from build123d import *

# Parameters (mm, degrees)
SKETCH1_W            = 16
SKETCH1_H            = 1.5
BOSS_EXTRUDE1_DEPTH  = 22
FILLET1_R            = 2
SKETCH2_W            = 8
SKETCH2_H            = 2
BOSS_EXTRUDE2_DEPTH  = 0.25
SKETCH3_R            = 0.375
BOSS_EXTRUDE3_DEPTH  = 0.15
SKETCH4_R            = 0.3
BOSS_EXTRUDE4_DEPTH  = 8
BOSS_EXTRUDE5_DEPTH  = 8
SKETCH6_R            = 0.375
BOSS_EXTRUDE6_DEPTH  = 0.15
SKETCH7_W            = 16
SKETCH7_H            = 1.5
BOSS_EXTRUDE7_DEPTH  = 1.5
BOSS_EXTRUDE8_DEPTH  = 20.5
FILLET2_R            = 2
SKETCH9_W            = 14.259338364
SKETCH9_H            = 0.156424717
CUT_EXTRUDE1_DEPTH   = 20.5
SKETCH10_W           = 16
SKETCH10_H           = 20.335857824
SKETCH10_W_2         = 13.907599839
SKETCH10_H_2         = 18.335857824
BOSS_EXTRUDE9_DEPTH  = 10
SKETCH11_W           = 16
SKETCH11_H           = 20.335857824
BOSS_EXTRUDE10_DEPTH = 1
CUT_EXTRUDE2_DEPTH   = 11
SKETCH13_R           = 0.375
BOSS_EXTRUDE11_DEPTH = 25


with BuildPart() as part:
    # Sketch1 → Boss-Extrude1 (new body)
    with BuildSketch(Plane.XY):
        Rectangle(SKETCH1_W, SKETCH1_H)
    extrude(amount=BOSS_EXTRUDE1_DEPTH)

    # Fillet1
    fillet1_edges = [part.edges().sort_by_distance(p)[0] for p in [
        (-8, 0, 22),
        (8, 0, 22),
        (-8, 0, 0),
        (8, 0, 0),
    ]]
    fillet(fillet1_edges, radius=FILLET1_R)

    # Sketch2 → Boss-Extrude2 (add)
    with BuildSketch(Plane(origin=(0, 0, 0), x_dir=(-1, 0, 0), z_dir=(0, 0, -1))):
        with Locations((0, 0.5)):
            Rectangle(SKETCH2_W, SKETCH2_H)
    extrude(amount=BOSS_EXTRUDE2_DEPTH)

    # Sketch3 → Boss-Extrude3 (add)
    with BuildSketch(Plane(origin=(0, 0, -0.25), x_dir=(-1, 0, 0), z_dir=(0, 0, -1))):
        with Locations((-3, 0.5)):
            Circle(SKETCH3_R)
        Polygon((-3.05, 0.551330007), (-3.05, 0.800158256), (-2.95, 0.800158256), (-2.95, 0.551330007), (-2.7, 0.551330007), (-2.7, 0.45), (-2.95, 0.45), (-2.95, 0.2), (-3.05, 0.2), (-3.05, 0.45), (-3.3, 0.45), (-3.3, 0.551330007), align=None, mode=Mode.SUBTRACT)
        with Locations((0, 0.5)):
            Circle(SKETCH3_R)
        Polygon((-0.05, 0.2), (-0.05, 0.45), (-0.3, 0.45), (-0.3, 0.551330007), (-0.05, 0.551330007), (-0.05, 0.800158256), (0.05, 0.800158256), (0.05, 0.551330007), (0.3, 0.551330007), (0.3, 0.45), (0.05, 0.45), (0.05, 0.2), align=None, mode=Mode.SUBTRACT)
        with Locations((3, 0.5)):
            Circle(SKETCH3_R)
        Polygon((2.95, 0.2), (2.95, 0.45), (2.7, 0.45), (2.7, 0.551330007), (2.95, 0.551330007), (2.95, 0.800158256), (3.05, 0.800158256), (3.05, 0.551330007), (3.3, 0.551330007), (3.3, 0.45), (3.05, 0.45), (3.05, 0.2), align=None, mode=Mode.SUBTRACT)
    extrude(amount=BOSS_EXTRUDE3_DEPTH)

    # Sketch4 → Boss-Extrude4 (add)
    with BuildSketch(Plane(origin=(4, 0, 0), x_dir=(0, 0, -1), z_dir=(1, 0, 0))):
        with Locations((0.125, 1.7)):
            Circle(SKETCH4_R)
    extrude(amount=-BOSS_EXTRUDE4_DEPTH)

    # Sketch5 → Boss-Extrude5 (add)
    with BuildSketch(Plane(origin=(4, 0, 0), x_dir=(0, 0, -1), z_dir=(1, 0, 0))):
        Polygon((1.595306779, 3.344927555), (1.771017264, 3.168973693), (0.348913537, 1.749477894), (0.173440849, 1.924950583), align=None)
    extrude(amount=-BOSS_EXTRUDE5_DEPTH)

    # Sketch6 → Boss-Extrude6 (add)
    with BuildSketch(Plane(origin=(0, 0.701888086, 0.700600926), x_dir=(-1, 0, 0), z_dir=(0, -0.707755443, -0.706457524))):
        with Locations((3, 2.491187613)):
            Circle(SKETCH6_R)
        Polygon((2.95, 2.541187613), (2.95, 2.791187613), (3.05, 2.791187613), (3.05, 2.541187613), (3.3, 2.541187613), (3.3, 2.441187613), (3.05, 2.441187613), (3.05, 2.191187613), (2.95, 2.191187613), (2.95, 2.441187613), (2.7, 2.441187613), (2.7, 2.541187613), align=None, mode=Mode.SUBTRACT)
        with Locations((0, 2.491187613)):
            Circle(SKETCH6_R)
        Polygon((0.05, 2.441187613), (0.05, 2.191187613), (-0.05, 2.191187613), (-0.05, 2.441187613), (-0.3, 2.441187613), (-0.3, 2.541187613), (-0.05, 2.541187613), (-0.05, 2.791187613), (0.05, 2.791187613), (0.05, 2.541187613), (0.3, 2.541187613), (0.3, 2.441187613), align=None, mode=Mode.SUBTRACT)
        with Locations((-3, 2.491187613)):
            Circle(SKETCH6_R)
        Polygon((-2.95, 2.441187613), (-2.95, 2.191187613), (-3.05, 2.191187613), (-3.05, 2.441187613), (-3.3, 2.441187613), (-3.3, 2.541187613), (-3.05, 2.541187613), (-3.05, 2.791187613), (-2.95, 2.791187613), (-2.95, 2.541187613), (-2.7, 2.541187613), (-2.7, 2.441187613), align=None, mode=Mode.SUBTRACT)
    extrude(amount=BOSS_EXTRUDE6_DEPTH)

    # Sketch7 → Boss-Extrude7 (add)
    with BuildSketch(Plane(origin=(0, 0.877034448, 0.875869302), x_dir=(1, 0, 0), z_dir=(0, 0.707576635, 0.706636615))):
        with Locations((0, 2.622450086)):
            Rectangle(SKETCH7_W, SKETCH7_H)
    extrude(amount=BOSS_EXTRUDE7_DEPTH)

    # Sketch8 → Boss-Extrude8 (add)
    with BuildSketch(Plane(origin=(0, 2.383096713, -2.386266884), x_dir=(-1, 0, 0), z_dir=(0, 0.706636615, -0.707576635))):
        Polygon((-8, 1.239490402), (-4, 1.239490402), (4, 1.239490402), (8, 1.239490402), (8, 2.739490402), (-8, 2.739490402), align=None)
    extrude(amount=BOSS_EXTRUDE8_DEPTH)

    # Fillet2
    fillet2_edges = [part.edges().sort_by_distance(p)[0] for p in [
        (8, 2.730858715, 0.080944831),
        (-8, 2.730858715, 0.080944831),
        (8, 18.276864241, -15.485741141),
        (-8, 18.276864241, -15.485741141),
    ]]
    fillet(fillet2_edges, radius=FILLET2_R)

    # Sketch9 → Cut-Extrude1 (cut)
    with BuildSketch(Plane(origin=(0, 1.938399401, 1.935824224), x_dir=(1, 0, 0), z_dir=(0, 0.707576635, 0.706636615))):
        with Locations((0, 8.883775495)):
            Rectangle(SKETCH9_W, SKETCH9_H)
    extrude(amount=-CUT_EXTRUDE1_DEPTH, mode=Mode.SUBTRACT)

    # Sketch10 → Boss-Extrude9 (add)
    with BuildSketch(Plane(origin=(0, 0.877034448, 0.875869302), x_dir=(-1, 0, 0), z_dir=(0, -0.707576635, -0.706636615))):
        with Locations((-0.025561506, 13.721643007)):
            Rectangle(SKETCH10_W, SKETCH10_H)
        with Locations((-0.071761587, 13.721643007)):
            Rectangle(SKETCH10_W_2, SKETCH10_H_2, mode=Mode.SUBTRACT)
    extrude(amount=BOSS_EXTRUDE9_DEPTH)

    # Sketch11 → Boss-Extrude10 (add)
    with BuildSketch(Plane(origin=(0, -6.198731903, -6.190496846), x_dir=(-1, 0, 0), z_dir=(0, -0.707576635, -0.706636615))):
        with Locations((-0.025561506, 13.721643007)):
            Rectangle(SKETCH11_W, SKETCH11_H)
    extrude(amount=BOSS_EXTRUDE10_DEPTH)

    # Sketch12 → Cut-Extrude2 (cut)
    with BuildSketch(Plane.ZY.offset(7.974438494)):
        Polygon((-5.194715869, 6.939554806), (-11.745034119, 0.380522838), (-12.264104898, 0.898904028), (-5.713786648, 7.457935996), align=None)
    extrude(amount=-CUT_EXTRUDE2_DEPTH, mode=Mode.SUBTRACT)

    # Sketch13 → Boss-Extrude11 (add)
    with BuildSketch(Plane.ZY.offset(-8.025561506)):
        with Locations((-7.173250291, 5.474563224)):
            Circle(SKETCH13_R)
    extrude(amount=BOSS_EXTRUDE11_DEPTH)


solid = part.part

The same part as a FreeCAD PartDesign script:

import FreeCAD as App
import Part
import Sketcher

V = App.Vector
Q = App.Units.Quantity


def edges_at(feature, points):
    """Names of the edges that pass closest to the given points."""
    edges = feature.Shape.Edges
    near = lambda p: min(range(len(edges)), key=lambda i: edges[i].distToShape(Part.Vertex(*p))[0])
    return sorted({f"Edge{near(p) + 1}" for p in points})


def add_polygon(sketch, points):
    """Adds a closed chain of lines whose ends are joined by coincident constraints."""
    first, n = sketch.GeometryCount, len(points)
    for a, b in zip(points, points[1:] + points[:1]):
        sketch.addGeometry(Part.LineSegment(App.Vector(*a, 0), App.Vector(*b, 0)), False)
    for i in range(n):
        sketch.addConstraint(Sketcher.Constraint("Coincident", first + i, 2, first + (i + 1) % n, 1))

doc = App.newDocument("Part")
body = doc.addObject("PartDesign::Body", "Body")

# Sketch on XY plane
sketch1 = body.newObject("Sketcher::SketchObject", "Sketch")
sketch1.AttachmentSupport = (doc.getObject("XY_Plane"), [""])
sketch1.MapMode = "FlatFace"
add_polygon(sketch1, [(-8, 0.8), (-8, -0.8), (8, -0.8), (8, 0.8)])  # lines 0-3
sketch1.addConstraint(Sketcher.Constraint("Vertical", 0))
sketch1.addConstraint(Sketcher.Constraint("Horizontal", 1))
sketch1.addConstraint(Sketcher.Constraint("Vertical", 2))
sketch1.addConstraint(Sketcher.Constraint("Horizontal", 3))
sketch1.addConstraint(Sketcher.Constraint("Symmetric", 0, 2, 2, 2, -1, 1))
sketch1.addConstraint(Sketcher.Constraint("DistanceX", 1, 1, 1, 2, 16.0))
sketch1.addConstraint(Sketcher.Constraint("DistanceY", 0, 2, 0, 1, 1.5))
pad1 = body.newObject("PartDesign::Pad", "Pad")
pad1.Profile = sketch1
pad1.Length = 22
doc.recompute()

fillet = body.newObject("PartDesign::Fillet", "Fillet")
fillet.Base = (pad1, edges_at(pad1, [
    (-8, 0, 22),
    (8, 0, 22),
    (-8, 0, 0),
    (8, 0, 0),
]))
fillet.Radius = 2

# Sketch on XY plane
sketch2 = body.newObject("Sketcher::SketchObject", "Sketch001")
sketch2.AttachmentSupport = (doc.getObject("XY_Plane"), [""])
sketch2.MapMode = "FlatFace"
add_polygon(sketch2, [(4, 1.5), (4, -0.5), (-4, -0.5), (-4, 1.5)])  # lines 0-3
sketch2.addConstraint(Sketcher.Constraint("Vertical", 0))
sketch2.addConstraint(Sketcher.Constraint("Horizontal", 1))
sketch2.addConstraint(Sketcher.Constraint("Vertical", 2))
sketch2.addConstraint(Sketcher.Constraint("Horizontal", 3))
sketch2.addConstraint(Sketcher.Constraint("DistanceX", 1, 2, 1, 1, 8.0))
sketch2.addConstraint(Sketcher.Constraint("DistanceY", 0, 2, 0, 1, 2.0))
sketch2.addConstraint(Sketcher.Constraint("DistanceX", -1, 1, 0, 2, 4.0))
sketch2.addConstraint(Sketcher.Constraint("DistanceY", 0, 2, -1, 1, 0.5))
pad2 = body.newObject("PartDesign::Pad", "Pad001")
pad2.Profile = sketch2
pad2.Length = 0.25
pad2.Reversed = True

# Sketch on XY plane
sketch3 = body.newObject("Sketcher::SketchObject", "Sketch002")
sketch3.AttachmentSupport = (doc.getObject("XY_Plane"), [""])
sketch3.MapMode = "FlatFace"
sketch3.AttachmentOffset = App.Placement(V(0, 0, -0.25), App.Rotation())
sketch3.addGeometry(Part.Circle(V(3, 0.5, 0), V(0, 0, 1), 0.38), False)  # 0
add_polygon(sketch3, [(3.3, 0.55), (3.05, 0.55), (3.05, 0.8), (2.95, 0.8), (2.95, 0.55), (2.7, 0.55), (2.7, 0.45), (2.95, 0.45), (2.95, 0.2), (3.05, 0.2), (3.05, 0.45), (3.3, 0.45)])  # lines 1-12
sketch3.addGeometry(Part.Circle(V(0, 0.5, 0), V(0, 0, 1), 0.38), False)  # 13
add_polygon(sketch3, [(-0.05, 0.2), (0.05, 0.2), (0.05, 0.45), (0.3, 0.45), (0.3, 0.55), (0.05, 0.55), (0.05, 0.8), (-0.05, 0.8), (-0.05, 0.55), (-0.3, 0.55), (-0.3, 0.45), (-0.05, 0.45)])  # lines 14-25
sketch3.addGeometry(Part.Circle(V(-3, 0.5, 0), V(0, 0, 1), 0.38), False)  # 26
add_polygon(sketch3, [(-3.05, 0.2), (-2.95, 0.2), (-2.95, 0.45), (-2.7, 0.45), (-2.7, 0.55), (-2.95, 0.55), (-2.95, 0.8), (-3.05, 0.8), (-3.05, 0.55), (-3.3, 0.55), (-3.3, 0.45), (-3.05, 0.45)])  # lines 27-38
sketch3.addConstraint(Sketcher.Constraint("Horizontal", 1))
sketch3.addConstraint(Sketcher.Constraint("Vertical", 2))
sketch3.addConstraint(Sketcher.Constraint("Horizontal", 3))
sketch3.addConstraint(Sketcher.Constraint("Vertical", 4))
sketch3.addConstraint(Sketcher.Constraint("Horizontal", 5))
sketch3.addConstraint(Sketcher.Constraint("Vertical", 6))
sketch3.addConstraint(Sketcher.Constraint("Horizontal", 7))
sketch3.addConstraint(Sketcher.Constraint("Vertical", 8))
sketch3.addConstraint(Sketcher.Constraint("Horizontal", 9))
sketch3.addConstraint(Sketcher.Constraint("Vertical", 10))
sketch3.addConstraint(Sketcher.Constraint("Horizontal", 11))
sketch3.addConstraint(Sketcher.Constraint("Vertical", 12))
sketch3.addConstraint(Sketcher.Constraint("Horizontal", 14))
sketch3.addConstraint(Sketcher.Constraint("Vertical", 15))
sketch3.addConstraint(Sketcher.Constraint("Horizontal", 16))
sketch3.addConstraint(Sketcher.Constraint("Vertical", 17))
sketch3.addConstraint(Sketcher.Constraint("Horizontal", 18))
sketch3.addConstraint(Sketcher.Constraint("Vertical", 19))
sketch3.addConstraint(Sketcher.Constraint("Horizontal", 20))
sketch3.addConstraint(Sketcher.Constraint("Vertical", 21))
sketch3.addConstraint(Sketcher.Constraint("Horizontal", 22))
sketch3.addConstraint(Sketcher.Constraint("Vertical", 23))
sketch3.addConstraint(Sketcher.Constraint("Horizontal", 24))
sketch3.addConstraint(Sketcher.Constraint("Vertical", 25))
sketch3.addConstraint(Sketcher.Constraint("Horizontal", 27))
sketch3.addConstraint(Sketcher.Constraint("Vertical", 28))
sketch3.addConstraint(Sketcher.Constraint("Horizontal", 29))
sketch3.addConstraint(Sketcher.Constraint("Vertical", 30))
sketch3.addConstraint(Sketcher.Constraint("Horizontal", 31))
sketch3.addConstraint(Sketcher.Constraint("Vertical", 32))
sketch3.addConstraint(Sketcher.Constraint("Horizontal", 33))
sketch3.addConstraint(Sketcher.Constraint("Vertical", 34))
sketch3.addConstraint(Sketcher.Constraint("Horizontal", 35))
sketch3.addConstraint(Sketcher.Constraint("Vertical", 36))
sketch3.addConstraint(Sketcher.Constraint("Horizontal", 37))
sketch3.addConstraint(Sketcher.Constraint("Vertical", 38))
sketch3.addConstraint(Sketcher.Constraint("Equal", 0, 13))
sketch3.addConstraint(Sketcher.Constraint("Equal", 13, 26))
sketch3.addConstraint(Sketcher.Constraint("Symmetric", 0, 3, 26, 3, -2))
sketch3.addConstraint(Sketcher.Constraint("Symmetric", 18, 2, 21, 2, -2))
sketch3.addConstraint(Sketcher.Constraint("Symmetric", 16, 2, 23, 2, -2))
sketch3.addConstraint(Sketcher.Constraint("Symmetric", 8, 2, 27, 2, -2))
sketch3.addConstraint(Sketcher.Constraint("Symmetric", 6, 2, 29, 2, -2))
sketch3.addConstraint(Sketcher.Constraint("Symmetric", 4, 2, 31, 2, -2))
sketch3.addConstraint(Sketcher.Constraint("Symmetric", 2, 2, 33, 2, -2))
sketch3.addConstraint(Sketcher.Constraint("Symmetric", 12, 2, 35, 2, -2))
sketch3.addConstraint(Sketcher.Constraint("Symmetric", 10, 2, 37, 2, -2))
sketch3.addConstraint(Sketcher.Constraint("PointOnObject", 13, 3, -2))
sketch3.addConstraint(Sketcher.Constraint("Horizontal", 0, 3, 13, 3))
sketch3.addConstraint(Sketcher.Constraint("Horizontal", 1, 2, 4, 2))
sketch3.addConstraint(Sketcher.Constraint("Horizontal", 7, 2, 10, 2))
sketch3.addConstraint(Sketcher.Constraint("Horizontal", 9, 2, 14, 2))
sketch3.addConstraint(Sketcher.Constraint("Horizontal", 11, 2, 15, 2))
sketch3.addConstraint(Sketcher.Constraint("Horizontal", 12, 2, 17, 2))
sketch3.addConstraint(Sketcher.Constraint("Horizontal", 3, 2, 19, 2))
sketch3.addConstraint(Sketcher.Constraint("Vertical", 4, 2, 7, 2))
sketch3.addConstraint(Sketcher.Constraint("Vertical", 2, 2, 9, 2))
sketch3.addConstraint(Sketcher.Constraint("Vertical", 15, 2, 18, 2))
sketch3.addConstraint(Sketcher.Constraint("Vertical", 21, 2, 24, 2))
sketch3.addConstraint(Sketcher.Constraint("Equal", 1, 5))
sketch3.addConstraint(Sketcher.Constraint("Equal", 9, 14))
sketch3.addConstraint(Sketcher.Constraint("Equal", 11, 16))
sketch3.addConstraint(Sketcher.Constraint("Equal", 37, 8))
sketch3.addConstraint(Sketcher.Constraint("Diameter", 0, 0.75))
sketch3.addConstraint(Sketcher.Constraint("DistanceX", 3, 2, 3, 1, 0.1))
sketch3.addConstraint(Sketcher.Constraint("DistanceX", -1, 1, 0, 3, 3.0))
sketch3.addConstraint(Sketcher.Constraint("DistanceX", 1, 2, 1, 1, 0.25))
sketch3.addConstraint(Sketcher.Constraint("DistanceY", -1, 1, 0, 3, 0.5))
sketch3.addConstraint(Sketcher.Constraint("DistanceX", -1, 1, 5, 2, 2.7))
sketch3.addConstraint(Sketcher.Constraint("DistanceY", -1, 1, 8, 2, 0.2))
sketch3.addConstraint(Sketcher.Constraint("DistanceY", 2, 1, 2, 2, 0.248828))
sketch3.addConstraint(Sketcher.Constraint("DistanceY", 6, 2, 6, 1, 0.10133))
pad3 = body.newObject("PartDesign::Pad", "Pad002")
pad3.Profile = sketch3
pad3.Length = 0.15
pad3.Reversed = True

# Sketch on YZ plane
sketch4 = body.newObject("Sketcher::SketchObject", "Sketch003")
sketch4.AttachmentSupport = (doc.getObject("YZ_Plane"), [""])
sketch4.MapMode = "FlatFace"
sketch4.AttachmentOffset = App.Placement(V(0, 0, 4), App.Rotation())
sketch4.addGeometry(Part.Circle(V(1.7, -0.12, 0), V(0, 0, 1), 0.3), False)
sketch4.addConstraint(Sketcher.Constraint("Diameter", 0, 0.6))
sketch4.addConstraint(Sketcher.Constraint("DistanceX", -1, 1, 0, 3, 1.7))
sketch4.addConstraint(Sketcher.Constraint("DistanceY", 0, 3, -1, 1, 0.125))
pad4 = body.newObject("PartDesign::Pad", "Pad003")
pad4.Profile = sketch4
pad4.Length = 8
pad4.Reversed = True

# Sketch on YZ plane
sketch5 = body.newObject("Sketcher::SketchObject", "Sketch004")
sketch5.AttachmentSupport = (doc.getObject("YZ_Plane"), [""])
sketch5.MapMode = "FlatFace"
sketch5.AttachmentOffset = App.Placement(V(0, 0, 4), App.Rotation())
add_polygon(sketch5, [(3.17, -1.77), (3.34, -1.6), (1.92, -0.17), (1.75, -0.35)])  # lines 0-3
sketch5.addConstraint(Sketcher.Constraint("Angle", 2, Q("-135 deg")))
sketch5.addConstraint(Sketcher.Constraint("DistanceX", -1, 1, 1, 2, 1.924951))
sketch5.addConstraint(Sketcher.Constraint("DistanceY", 1, 2, -1, 1, 0.173441))
sketch5.addConstraint(Sketcher.Constraint("DistanceX", 2, 2, 0, 2, 1.59545))
sketch5.addConstraint(Sketcher.Constraint("DistanceY", 3, 2, 0, 2, 0.17571))
sketch5.addConstraint(Sketcher.Constraint("Distance", 0, 0.248664))
sketch5.addConstraint(Sketcher.Constraint("Distance", 1, 2.009487))
sketch5.addConstraint(Sketcher.Constraint("Distance", 2, 0.248156))
pad5 = body.newObject("PartDesign::Pad", "Pad004")
pad5.Profile = sketch5
pad5.Length = 8
pad5.Reversed = True

# Sketch on an angled plane
sketch6 = body.newObject("Sketcher::SketchObject", "Sketch005")
sketch6.Placement = App.Placement(V(0, 0.701888, 0.700601), App.Rotation(V(-1, 0, 0), V(0, 0.706457524, -0.707755443), V(0, -0.707755443, -0.706457524), "ZXY"))
sketch6.addGeometry(Part.Circle(V(3, 2.49, 0), V(0, 0, 1), 0.38), False)  # 0
add_polygon(sketch6, [(2.7, 2.54), (2.95, 2.54), (2.95, 2.79), (3.05, 2.79), (3.05, 2.54), (3.3, 2.54), (3.3, 2.44), (3.05, 2.44), (3.05, 2.19), (2.95, 2.19), (2.95, 2.44), (2.7, 2.44)])  # lines 1-12
sketch6.addGeometry(Part.Circle(V(0, 2.49, 0), V(0, 0, 1), 0.38), False)  # 13
add_polygon(sketch6, [(0.3, 2.44), (0.05, 2.44), (0.05, 2.19), (-0.05, 2.19), (-0.05, 2.44), (-0.3, 2.44), (-0.3, 2.54), (-0.05, 2.54), (-0.05, 2.79), (0.05, 2.79), (0.05, 2.54), (0.3, 2.54)])  # lines 14-25
sketch6.addGeometry(Part.Circle(V(-3, 2.49, 0), V(0, 0, 1), 0.38), False)  # 26
add_polygon(sketch6, [(-2.7, 2.44), (-2.95, 2.44), (-2.95, 2.19), (-3.05, 2.19), (-3.05, 2.44), (-3.3, 2.44), (-3.3, 2.54), (-3.05, 2.54), (-3.05, 2.79), (-2.95, 2.79), (-2.95, 2.54), (-2.7, 2.54)])  # lines 27-38
sketch6.addConstraint(Sketcher.Constraint("Horizontal", 1))
sketch6.addConstraint(Sketcher.Constraint("Vertical", 2))
sketch6.addConstraint(Sketcher.Constraint("Horizontal", 3))
sketch6.addConstraint(Sketcher.Constraint("Vertical", 4))
sketch6.addConstraint(Sketcher.Constraint("Horizontal", 5))
sketch6.addConstraint(Sketcher.Constraint("Vertical", 6))
sketch6.addConstraint(Sketcher.Constraint("Horizontal", 7))
sketch6.addConstraint(Sketcher.Constraint("Vertical", 8))
sketch6.addConstraint(Sketcher.Constraint("Horizontal", 9))
sketch6.addConstraint(Sketcher.Constraint("Vertical", 10))
sketch6.addConstraint(Sketcher.Constraint("Horizontal", 11))
sketch6.addConstraint(Sketcher.Constraint("Vertical", 12))
sketch6.addConstraint(Sketcher.Constraint("Horizontal", 14))
sketch6.addConstraint(Sketcher.Constraint("Vertical", 15))
sketch6.addConstraint(Sketcher.Constraint("Horizontal", 16))
sketch6.addConstraint(Sketcher.Constraint("Vertical", 17))
sketch6.addConstraint(Sketcher.Constraint("Horizontal", 18))
sketch6.addConstraint(Sketcher.Constraint("Vertical", 19))
sketch6.addConstraint(Sketcher.Constraint("Horizontal", 20))
sketch6.addConstraint(Sketcher.Constraint("Vertical", 21))
sketch6.addConstraint(Sketcher.Constraint("Horizontal", 22))
sketch6.addConstraint(Sketcher.Constraint("Vertical", 23))
sketch6.addConstraint(Sketcher.Constraint("Horizontal", 24))
sketch6.addConstraint(Sketcher.Constraint("Vertical", 25))
sketch6.addConstraint(Sketcher.Constraint("Horizontal", 27))
sketch6.addConstraint(Sketcher.Constraint("Vertical", 28))
sketch6.addConstraint(Sketcher.Constraint("Horizontal", 29))
sketch6.addConstraint(Sketcher.Constraint("Vertical", 30))
sketch6.addConstraint(Sketcher.Constraint("Horizontal", 31))
sketch6.addConstraint(Sketcher.Constraint("Vertical", 32))
sketch6.addConstraint(Sketcher.Constraint("Horizontal", 33))
sketch6.addConstraint(Sketcher.Constraint("Vertical", 34))
sketch6.addConstraint(Sketcher.Constraint("Horizontal", 35))
sketch6.addConstraint(Sketcher.Constraint("Vertical", 36))
sketch6.addConstraint(Sketcher.Constraint("Horizontal", 37))
sketch6.addConstraint(Sketcher.Constraint("Vertical", 38))
sketch6.addConstraint(Sketcher.Constraint("Equal", 0, 13))
sketch6.addConstraint(Sketcher.Constraint("Equal", 13, 26))
sketch6.addConstraint(Sketcher.Constraint("Symmetric", 0, 3, 26, 3, -2))
sketch6.addConstraint(Sketcher.Constraint("Symmetric", 14, 2, 17, 2, -2))
sketch6.addConstraint(Sketcher.Constraint("Symmetric", 20, 2, 23, 2, -2))
sketch6.addConstraint(Sketcher.Constraint("Symmetric", 10, 2, 27, 2, -2))
sketch6.addConstraint(Sketcher.Constraint("Symmetric", 8, 2, 29, 2, -2))
sketch6.addConstraint(Sketcher.Constraint("Symmetric", 6, 2, 31, 2, -2))
sketch6.addConstraint(Sketcher.Constraint("Symmetric", 4, 2, 33, 2, -2))
sketch6.addConstraint(Sketcher.Constraint("Symmetric", 2, 2, 35, 2, -2))
sketch6.addConstraint(Sketcher.Constraint("Symmetric", 12, 2, 37, 2, -2))
sketch6.addConstraint(Sketcher.Constraint("PointOnObject", 13, 3, -2))
sketch6.addConstraint(Sketcher.Constraint("Horizontal", 0, 3, 13, 3))
sketch6.addConstraint(Sketcher.Constraint("Horizontal", 1, 2, 4, 2))
sketch6.addConstraint(Sketcher.Constraint("Horizontal", 7, 2, 10, 2))
sketch6.addConstraint(Sketcher.Constraint("Horizontal", 11, 2, 14, 2))
sketch6.addConstraint(Sketcher.Constraint("Horizontal", 9, 2, 15, 2))
sketch6.addConstraint(Sketcher.Constraint("Horizontal", 12, 2, 19, 2))
sketch6.addConstraint(Sketcher.Constraint("Horizontal", 3, 2, 21, 2))
sketch6.addConstraint(Sketcher.Constraint("Vertical", 4, 2, 7, 2))
sketch6.addConstraint(Sketcher.Constraint("Vertical", 2, 2, 9, 2))
sketch6.addConstraint(Sketcher.Constraint("Vertical", 17, 2, 20, 2))
sketch6.addConstraint(Sketcher.Constraint("Equal", 1, 5))
sketch6.addConstraint(Sketcher.Constraint("Equal", 11, 14))
sketch6.addConstraint(Sketcher.Constraint("Equal", 9, 16))
sketch6.addConstraint(Sketcher.Constraint("Equal", 14, 18))
sketch6.addConstraint(Sketcher.Constraint("Equal", 37, 2))
sketch6.addConstraint(Sketcher.Constraint("Equal", 35, 6))
sketch6.addConstraint(Sketcher.Constraint("Equal", 4, 8))
sketch6.addConstraint(Sketcher.Constraint("Diameter", 0, 0.75))
sketch6.addConstraint(Sketcher.Constraint("DistanceX", 3, 1, 3, 2, 0.1))
sketch6.addConstraint(Sketcher.Constraint("DistanceX", -1, 1, 0, 3, 3.0))
sketch6.addConstraint(Sketcher.Constraint("DistanceX", 1, 1, 1, 2, 0.25))
sketch6.addConstraint(Sketcher.Constraint("DistanceX", -1, 1, 5, 2, 3.3))
sketch6.addConstraint(Sketcher.Constraint("DistanceY", 0, 3, 2, 2, 0.3))
sketch6.addConstraint(Sketcher.Constraint("DistanceY", -1, 1, 0, 3, 2.491188))
pad6 = body.newObject("PartDesign::Pad", "Pad005")
pad6.Profile = sketch6
pad6.Length = 0.15

# Sketch on an angled plane
sketch7 = body.newObject("Sketcher::SketchObject", "Sketch006")
sketch7.Placement = App.Placement(V(0, 0.877034, 0.875869), App.Rotation(V(1, 0, 0), V(0, 0.706636615, -0.707576635), V(0, 0.707576635, 0.706636615), "ZXY"))
add_polygon(sketch7, [(-8, 3.4), (-8, 1.9), (8, 1.9), (8, 3.4)])  # lines 0-3
sketch7.addConstraint(Sketcher.Constraint("Vertical", 0))
sketch7.addConstraint(Sketcher.Constraint("Horizontal", 1))
sketch7.addConstraint(Sketcher.Constraint("Vertical", 2))
sketch7.addConstraint(Sketcher.Constraint("Horizontal", 3))
sketch7.addConstraint(Sketcher.Constraint("DistanceX", 1, 1, 1, 2, 16.0))
sketch7.addConstraint(Sketcher.Constraint("DistanceY", 0, 2, 0, 1, 1.5))
sketch7.addConstraint(Sketcher.Constraint("DistanceX", 0, 2, -1, 1, 8.0))
sketch7.addConstraint(Sketcher.Constraint("DistanceY", -1, 1, 0, 2, 1.87245))
pad7 = body.newObject("PartDesign::Pad", "Pad006")
pad7.Profile = sketch7
pad7.Length = 1.5

# Sketch on an angled plane
sketch8 = body.newObject("Sketcher::SketchObject", "Sketch007")
sketch8.Placement = App.Placement(V(0, 2.383097, -2.386267), App.Rotation(V(-1, 0, 0), V(0, 0.707576635, 0.706636615), V(0, 0.706636615, -0.707576635), "ZXY"))
add_polygon(sketch8, [(-8, 1.2), (8, 1.2), (8, 2.7), (-8, 2.7)])  # lines 0-3
sketch8.addConstraint(Sketcher.Constraint("Horizontal", 0))
sketch8.addConstraint(Sketcher.Constraint("Vertical", 1))
sketch8.addConstraint(Sketcher.Constraint("Horizontal", 2))
sketch8.addConstraint(Sketcher.Constraint("Vertical", 3))
sketch8.addConstraint(Sketcher.Constraint("DistanceX", 0, 1, 0, 2, 16.0))
sketch8.addConstraint(Sketcher.Constraint("DistanceY", 1, 1, 1, 2, 1.5))
sketch8.addConstraint(Sketcher.Constraint("DistanceX", -1, 1, 0, 2, 8.0))
sketch8.addConstraint(Sketcher.Constraint("DistanceY", -1, 1, 0, 2, 1.23949))
pad8 = body.newObject("PartDesign::Pad", "Pad007")
pad8.Profile = sketch8
pad8.Length = 20.5
doc.recompute()

fillet2 = body.newObject("PartDesign::Fillet", "Fillet001")
fillet2.Base = (pad8, edges_at(pad8, [
    (8, 2.731, 0.081),
    (-8, 2.731, 0.081),
    (8, 18.277, -15.486),
    (-8, 18.277, -15.486),
]))
fillet2.Radius = 2

# Sketch on an angled plane
sketch9 = body.newObject("Sketcher::SketchObject", "Sketch008")
sketch9.Placement = App.Placement(V(0, 1.938399, 1.935824), App.Rotation(V(1, 0, 0), V(0, 0.706636615, -0.707576635), V(0, 0.707576635, 0.706636615), "ZXY"))
add_polygon(sketch9, [(-7.13, 8.96), (-7.13, 8.81), (7.13, 8.81), (7.13, 8.96)])  # lines 0-3
sketch9.addConstraint(Sketcher.Constraint("Vertical", 0))
sketch9.addConstraint(Sketcher.Constraint("Horizontal", 1))
sketch9.addConstraint(Sketcher.Constraint("Vertical", 2))
sketch9.addConstraint(Sketcher.Constraint("Horizontal", 3))
sketch9.addConstraint(Sketcher.Constraint("DistanceX", 1, 1, 1, 2, 14.259338))
sketch9.addConstraint(Sketcher.Constraint("DistanceY", 0, 2, 0, 1, 0.156425))
sketch9.addConstraint(Sketcher.Constraint("DistanceX", 0, 2, -1, 1, 7.129669))
sketch9.addConstraint(Sketcher.Constraint("DistanceY", -1, 1, 0, 2, 8.805563))
pocket1 = body.newObject("PartDesign::Pocket", "Pocket")
pocket1.Profile = sketch9
pocket1.Length = 20.5

# Sketch on an angled plane
sketch10 = body.newObject("Sketcher::SketchObject", "Sketch009")
sketch10.Placement = App.Placement(V(0, 0.877034, 0.875869), App.Rotation(V(-1, 0, 0), V(0, 0.706636615, -0.707576635), V(0, -0.707576635, -0.706636615), "ZXY"))
add_polygon(sketch10, [(-8, 24), (-8, 4), (8, 4), (8, 24)])  # lines 0-3
add_polygon(sketch10, [(7, 5), (-7, 5), (-7, 23), (7, 23)])  # lines 4-7
sketch10.addConstraint(Sketcher.Constraint("Vertical", 0))
sketch10.addConstraint(Sketcher.Constraint("Horizontal", 1))
sketch10.addConstraint(Sketcher.Constraint("Vertical", 2))
sketch10.addConstraint(Sketcher.Constraint("Horizontal", 3))
sketch10.addConstraint(Sketcher.Constraint("Horizontal", 4))
sketch10.addConstraint(Sketcher.Constraint("Vertical", 5))
sketch10.addConstraint(Sketcher.Constraint("Horizontal", 6))
sketch10.addConstraint(Sketcher.Constraint("Vertical", 7))
sketch10.addConstraint(Sketcher.Constraint("DistanceX", 1, 1, 1, 2, 16.0))
sketch10.addConstraint(Sketcher.Constraint("DistanceX", 0, 2, 4, 2, 1.0))
sketch10.addConstraint(Sketcher.Constraint("DistanceY", 0, 2, 4, 2, 1.0))
sketch10.addConstraint(Sketcher.Constraint("DistanceY", 5, 2, 3, 2, 1.0))
sketch10.addConstraint(Sketcher.Constraint("DistanceX", 4, 2, 4, 1, 13.9076))
sketch10.addConstraint(Sketcher.Constraint("DistanceY", 0, 2, 0, 1, 20.335858))
sketch10.addConstraint(Sketcher.Constraint("DistanceX", 0, 2, -1, 1, 8.025562))
sketch10.addConstraint(Sketcher.Constraint("DistanceY", -1, 1, 2, 2, 23.889572))
pad9 = body.newObject("PartDesign::Pad", "Pad008")
pad9.Profile = sketch10
pad9.Length = 10

# Sketch on an angled plane
sketch11 = body.newObject("Sketcher::SketchObject", "Sketch010")
sketch11.Placement = App.Placement(V(0, -6.198732, -6.190497), App.Rotation(V(-1, 0, 0), V(0, 0.706636615, -0.707576635), V(0, -0.707576635, -0.706636615), "ZXY"))
add_polygon(sketch11, [(-8, 24), (-8, 4), (8, 4), (8, 24)])  # lines 0-3
sketch11.addConstraint(Sketcher.Constraint("Vertical", 0))
sketch11.addConstraint(Sketcher.Constraint("Horizontal", 1))
sketch11.addConstraint(Sketcher.Constraint("Vertical", 2))
sketch11.addConstraint(Sketcher.Constraint("Horizontal", 3))
sketch11.addConstraint(Sketcher.Constraint("DistanceX", 1, 1, 1, 2, 16.0))
sketch11.addConstraint(Sketcher.Constraint("DistanceY", 0, 2, 0, 1, 20.335858))
sketch11.addConstraint(Sketcher.Constraint("DistanceX", 0, 2, -1, 1, 8.025562))
sketch11.addConstraint(Sketcher.Constraint("DistanceY", -1, 1, 2, 2, 23.889572))
pad10 = body.newObject("PartDesign::Pad", "Pad009")
pad10.Profile = sketch11
pad10.Length = 1

# Sketch on YZ plane
sketch12 = body.newObject("Sketcher::SketchObject", "Sketch011")
sketch12.AttachmentSupport = (doc.getObject("YZ_Plane"), [""])
sketch12.MapMode = "FlatFace"
sketch12.AttachmentOffset = App.Placement(V(0, 0, -7.974438), App.Rotation())
add_polygon(sketch12, [(0.4, -11.7), (6.9, -5.2), (7.5, -5.7), (0.9, -12.3)])  # lines 0-3
sketch12.addConstraint(Sketcher.Constraint("Perpendicular", 0, 1))
sketch12.addConstraint(Sketcher.Constraint("Perpendicular", 1, 2))
sketch12.addConstraint(Sketcher.Constraint("Perpendicular", 2, 3))
sketch12.addConstraint(Sketcher.Constraint("Distance", 1, 0.733589))
sketch12.addConstraint(Sketcher.Constraint("DistanceX", 0, 2, 1, 2, 0.518381))
sketch12.addConstraint(Sketcher.Constraint("DistanceX", 2, 2, 1, 2, 6.559032))
sketch12.addConstraint(Sketcher.Constraint("DistanceX", -1, 1, 0, 2, 6.939555))
sketch12.addConstraint(Sketcher.Constraint("DistanceY", 0, 2, -1, 1, 5.194716))
pocket2 = body.newObject("PartDesign::Pocket", "Pocket001")
pocket2.Profile = sketch12
pocket2.Length = 11
pocket2.Reversed = True

# Sketch on YZ plane
sketch13 = body.newObject("Sketcher::SketchObject", "Sketch012")
sketch13.AttachmentSupport = (doc.getObject("YZ_Plane"), [""])
sketch13.MapMode = "FlatFace"
sketch13.AttachmentOffset = App.Placement(V(0, 0, 8.025562), App.Rotation())
sketch13.addGeometry(Part.Circle(V(5.47, -7.17, 0), V(0, 0, 1), 0.38), False)
sketch13.addConstraint(Sketcher.Constraint("Diameter", 0, 0.75))
sketch13.addConstraint(Sketcher.Constraint("DistanceY", 0, 3, -1, 1, 7.17325))
sketch13.addConstraint(Sketcher.Constraint("DistanceX", -1, 1, 0, 3, 5.474563))
pad11 = body.newObject("PartDesign::Pad", "Pad010")
pad11.Profile = sketch13
pad11.Length = 25
pad11.Reversed = True

doc.recompute()
